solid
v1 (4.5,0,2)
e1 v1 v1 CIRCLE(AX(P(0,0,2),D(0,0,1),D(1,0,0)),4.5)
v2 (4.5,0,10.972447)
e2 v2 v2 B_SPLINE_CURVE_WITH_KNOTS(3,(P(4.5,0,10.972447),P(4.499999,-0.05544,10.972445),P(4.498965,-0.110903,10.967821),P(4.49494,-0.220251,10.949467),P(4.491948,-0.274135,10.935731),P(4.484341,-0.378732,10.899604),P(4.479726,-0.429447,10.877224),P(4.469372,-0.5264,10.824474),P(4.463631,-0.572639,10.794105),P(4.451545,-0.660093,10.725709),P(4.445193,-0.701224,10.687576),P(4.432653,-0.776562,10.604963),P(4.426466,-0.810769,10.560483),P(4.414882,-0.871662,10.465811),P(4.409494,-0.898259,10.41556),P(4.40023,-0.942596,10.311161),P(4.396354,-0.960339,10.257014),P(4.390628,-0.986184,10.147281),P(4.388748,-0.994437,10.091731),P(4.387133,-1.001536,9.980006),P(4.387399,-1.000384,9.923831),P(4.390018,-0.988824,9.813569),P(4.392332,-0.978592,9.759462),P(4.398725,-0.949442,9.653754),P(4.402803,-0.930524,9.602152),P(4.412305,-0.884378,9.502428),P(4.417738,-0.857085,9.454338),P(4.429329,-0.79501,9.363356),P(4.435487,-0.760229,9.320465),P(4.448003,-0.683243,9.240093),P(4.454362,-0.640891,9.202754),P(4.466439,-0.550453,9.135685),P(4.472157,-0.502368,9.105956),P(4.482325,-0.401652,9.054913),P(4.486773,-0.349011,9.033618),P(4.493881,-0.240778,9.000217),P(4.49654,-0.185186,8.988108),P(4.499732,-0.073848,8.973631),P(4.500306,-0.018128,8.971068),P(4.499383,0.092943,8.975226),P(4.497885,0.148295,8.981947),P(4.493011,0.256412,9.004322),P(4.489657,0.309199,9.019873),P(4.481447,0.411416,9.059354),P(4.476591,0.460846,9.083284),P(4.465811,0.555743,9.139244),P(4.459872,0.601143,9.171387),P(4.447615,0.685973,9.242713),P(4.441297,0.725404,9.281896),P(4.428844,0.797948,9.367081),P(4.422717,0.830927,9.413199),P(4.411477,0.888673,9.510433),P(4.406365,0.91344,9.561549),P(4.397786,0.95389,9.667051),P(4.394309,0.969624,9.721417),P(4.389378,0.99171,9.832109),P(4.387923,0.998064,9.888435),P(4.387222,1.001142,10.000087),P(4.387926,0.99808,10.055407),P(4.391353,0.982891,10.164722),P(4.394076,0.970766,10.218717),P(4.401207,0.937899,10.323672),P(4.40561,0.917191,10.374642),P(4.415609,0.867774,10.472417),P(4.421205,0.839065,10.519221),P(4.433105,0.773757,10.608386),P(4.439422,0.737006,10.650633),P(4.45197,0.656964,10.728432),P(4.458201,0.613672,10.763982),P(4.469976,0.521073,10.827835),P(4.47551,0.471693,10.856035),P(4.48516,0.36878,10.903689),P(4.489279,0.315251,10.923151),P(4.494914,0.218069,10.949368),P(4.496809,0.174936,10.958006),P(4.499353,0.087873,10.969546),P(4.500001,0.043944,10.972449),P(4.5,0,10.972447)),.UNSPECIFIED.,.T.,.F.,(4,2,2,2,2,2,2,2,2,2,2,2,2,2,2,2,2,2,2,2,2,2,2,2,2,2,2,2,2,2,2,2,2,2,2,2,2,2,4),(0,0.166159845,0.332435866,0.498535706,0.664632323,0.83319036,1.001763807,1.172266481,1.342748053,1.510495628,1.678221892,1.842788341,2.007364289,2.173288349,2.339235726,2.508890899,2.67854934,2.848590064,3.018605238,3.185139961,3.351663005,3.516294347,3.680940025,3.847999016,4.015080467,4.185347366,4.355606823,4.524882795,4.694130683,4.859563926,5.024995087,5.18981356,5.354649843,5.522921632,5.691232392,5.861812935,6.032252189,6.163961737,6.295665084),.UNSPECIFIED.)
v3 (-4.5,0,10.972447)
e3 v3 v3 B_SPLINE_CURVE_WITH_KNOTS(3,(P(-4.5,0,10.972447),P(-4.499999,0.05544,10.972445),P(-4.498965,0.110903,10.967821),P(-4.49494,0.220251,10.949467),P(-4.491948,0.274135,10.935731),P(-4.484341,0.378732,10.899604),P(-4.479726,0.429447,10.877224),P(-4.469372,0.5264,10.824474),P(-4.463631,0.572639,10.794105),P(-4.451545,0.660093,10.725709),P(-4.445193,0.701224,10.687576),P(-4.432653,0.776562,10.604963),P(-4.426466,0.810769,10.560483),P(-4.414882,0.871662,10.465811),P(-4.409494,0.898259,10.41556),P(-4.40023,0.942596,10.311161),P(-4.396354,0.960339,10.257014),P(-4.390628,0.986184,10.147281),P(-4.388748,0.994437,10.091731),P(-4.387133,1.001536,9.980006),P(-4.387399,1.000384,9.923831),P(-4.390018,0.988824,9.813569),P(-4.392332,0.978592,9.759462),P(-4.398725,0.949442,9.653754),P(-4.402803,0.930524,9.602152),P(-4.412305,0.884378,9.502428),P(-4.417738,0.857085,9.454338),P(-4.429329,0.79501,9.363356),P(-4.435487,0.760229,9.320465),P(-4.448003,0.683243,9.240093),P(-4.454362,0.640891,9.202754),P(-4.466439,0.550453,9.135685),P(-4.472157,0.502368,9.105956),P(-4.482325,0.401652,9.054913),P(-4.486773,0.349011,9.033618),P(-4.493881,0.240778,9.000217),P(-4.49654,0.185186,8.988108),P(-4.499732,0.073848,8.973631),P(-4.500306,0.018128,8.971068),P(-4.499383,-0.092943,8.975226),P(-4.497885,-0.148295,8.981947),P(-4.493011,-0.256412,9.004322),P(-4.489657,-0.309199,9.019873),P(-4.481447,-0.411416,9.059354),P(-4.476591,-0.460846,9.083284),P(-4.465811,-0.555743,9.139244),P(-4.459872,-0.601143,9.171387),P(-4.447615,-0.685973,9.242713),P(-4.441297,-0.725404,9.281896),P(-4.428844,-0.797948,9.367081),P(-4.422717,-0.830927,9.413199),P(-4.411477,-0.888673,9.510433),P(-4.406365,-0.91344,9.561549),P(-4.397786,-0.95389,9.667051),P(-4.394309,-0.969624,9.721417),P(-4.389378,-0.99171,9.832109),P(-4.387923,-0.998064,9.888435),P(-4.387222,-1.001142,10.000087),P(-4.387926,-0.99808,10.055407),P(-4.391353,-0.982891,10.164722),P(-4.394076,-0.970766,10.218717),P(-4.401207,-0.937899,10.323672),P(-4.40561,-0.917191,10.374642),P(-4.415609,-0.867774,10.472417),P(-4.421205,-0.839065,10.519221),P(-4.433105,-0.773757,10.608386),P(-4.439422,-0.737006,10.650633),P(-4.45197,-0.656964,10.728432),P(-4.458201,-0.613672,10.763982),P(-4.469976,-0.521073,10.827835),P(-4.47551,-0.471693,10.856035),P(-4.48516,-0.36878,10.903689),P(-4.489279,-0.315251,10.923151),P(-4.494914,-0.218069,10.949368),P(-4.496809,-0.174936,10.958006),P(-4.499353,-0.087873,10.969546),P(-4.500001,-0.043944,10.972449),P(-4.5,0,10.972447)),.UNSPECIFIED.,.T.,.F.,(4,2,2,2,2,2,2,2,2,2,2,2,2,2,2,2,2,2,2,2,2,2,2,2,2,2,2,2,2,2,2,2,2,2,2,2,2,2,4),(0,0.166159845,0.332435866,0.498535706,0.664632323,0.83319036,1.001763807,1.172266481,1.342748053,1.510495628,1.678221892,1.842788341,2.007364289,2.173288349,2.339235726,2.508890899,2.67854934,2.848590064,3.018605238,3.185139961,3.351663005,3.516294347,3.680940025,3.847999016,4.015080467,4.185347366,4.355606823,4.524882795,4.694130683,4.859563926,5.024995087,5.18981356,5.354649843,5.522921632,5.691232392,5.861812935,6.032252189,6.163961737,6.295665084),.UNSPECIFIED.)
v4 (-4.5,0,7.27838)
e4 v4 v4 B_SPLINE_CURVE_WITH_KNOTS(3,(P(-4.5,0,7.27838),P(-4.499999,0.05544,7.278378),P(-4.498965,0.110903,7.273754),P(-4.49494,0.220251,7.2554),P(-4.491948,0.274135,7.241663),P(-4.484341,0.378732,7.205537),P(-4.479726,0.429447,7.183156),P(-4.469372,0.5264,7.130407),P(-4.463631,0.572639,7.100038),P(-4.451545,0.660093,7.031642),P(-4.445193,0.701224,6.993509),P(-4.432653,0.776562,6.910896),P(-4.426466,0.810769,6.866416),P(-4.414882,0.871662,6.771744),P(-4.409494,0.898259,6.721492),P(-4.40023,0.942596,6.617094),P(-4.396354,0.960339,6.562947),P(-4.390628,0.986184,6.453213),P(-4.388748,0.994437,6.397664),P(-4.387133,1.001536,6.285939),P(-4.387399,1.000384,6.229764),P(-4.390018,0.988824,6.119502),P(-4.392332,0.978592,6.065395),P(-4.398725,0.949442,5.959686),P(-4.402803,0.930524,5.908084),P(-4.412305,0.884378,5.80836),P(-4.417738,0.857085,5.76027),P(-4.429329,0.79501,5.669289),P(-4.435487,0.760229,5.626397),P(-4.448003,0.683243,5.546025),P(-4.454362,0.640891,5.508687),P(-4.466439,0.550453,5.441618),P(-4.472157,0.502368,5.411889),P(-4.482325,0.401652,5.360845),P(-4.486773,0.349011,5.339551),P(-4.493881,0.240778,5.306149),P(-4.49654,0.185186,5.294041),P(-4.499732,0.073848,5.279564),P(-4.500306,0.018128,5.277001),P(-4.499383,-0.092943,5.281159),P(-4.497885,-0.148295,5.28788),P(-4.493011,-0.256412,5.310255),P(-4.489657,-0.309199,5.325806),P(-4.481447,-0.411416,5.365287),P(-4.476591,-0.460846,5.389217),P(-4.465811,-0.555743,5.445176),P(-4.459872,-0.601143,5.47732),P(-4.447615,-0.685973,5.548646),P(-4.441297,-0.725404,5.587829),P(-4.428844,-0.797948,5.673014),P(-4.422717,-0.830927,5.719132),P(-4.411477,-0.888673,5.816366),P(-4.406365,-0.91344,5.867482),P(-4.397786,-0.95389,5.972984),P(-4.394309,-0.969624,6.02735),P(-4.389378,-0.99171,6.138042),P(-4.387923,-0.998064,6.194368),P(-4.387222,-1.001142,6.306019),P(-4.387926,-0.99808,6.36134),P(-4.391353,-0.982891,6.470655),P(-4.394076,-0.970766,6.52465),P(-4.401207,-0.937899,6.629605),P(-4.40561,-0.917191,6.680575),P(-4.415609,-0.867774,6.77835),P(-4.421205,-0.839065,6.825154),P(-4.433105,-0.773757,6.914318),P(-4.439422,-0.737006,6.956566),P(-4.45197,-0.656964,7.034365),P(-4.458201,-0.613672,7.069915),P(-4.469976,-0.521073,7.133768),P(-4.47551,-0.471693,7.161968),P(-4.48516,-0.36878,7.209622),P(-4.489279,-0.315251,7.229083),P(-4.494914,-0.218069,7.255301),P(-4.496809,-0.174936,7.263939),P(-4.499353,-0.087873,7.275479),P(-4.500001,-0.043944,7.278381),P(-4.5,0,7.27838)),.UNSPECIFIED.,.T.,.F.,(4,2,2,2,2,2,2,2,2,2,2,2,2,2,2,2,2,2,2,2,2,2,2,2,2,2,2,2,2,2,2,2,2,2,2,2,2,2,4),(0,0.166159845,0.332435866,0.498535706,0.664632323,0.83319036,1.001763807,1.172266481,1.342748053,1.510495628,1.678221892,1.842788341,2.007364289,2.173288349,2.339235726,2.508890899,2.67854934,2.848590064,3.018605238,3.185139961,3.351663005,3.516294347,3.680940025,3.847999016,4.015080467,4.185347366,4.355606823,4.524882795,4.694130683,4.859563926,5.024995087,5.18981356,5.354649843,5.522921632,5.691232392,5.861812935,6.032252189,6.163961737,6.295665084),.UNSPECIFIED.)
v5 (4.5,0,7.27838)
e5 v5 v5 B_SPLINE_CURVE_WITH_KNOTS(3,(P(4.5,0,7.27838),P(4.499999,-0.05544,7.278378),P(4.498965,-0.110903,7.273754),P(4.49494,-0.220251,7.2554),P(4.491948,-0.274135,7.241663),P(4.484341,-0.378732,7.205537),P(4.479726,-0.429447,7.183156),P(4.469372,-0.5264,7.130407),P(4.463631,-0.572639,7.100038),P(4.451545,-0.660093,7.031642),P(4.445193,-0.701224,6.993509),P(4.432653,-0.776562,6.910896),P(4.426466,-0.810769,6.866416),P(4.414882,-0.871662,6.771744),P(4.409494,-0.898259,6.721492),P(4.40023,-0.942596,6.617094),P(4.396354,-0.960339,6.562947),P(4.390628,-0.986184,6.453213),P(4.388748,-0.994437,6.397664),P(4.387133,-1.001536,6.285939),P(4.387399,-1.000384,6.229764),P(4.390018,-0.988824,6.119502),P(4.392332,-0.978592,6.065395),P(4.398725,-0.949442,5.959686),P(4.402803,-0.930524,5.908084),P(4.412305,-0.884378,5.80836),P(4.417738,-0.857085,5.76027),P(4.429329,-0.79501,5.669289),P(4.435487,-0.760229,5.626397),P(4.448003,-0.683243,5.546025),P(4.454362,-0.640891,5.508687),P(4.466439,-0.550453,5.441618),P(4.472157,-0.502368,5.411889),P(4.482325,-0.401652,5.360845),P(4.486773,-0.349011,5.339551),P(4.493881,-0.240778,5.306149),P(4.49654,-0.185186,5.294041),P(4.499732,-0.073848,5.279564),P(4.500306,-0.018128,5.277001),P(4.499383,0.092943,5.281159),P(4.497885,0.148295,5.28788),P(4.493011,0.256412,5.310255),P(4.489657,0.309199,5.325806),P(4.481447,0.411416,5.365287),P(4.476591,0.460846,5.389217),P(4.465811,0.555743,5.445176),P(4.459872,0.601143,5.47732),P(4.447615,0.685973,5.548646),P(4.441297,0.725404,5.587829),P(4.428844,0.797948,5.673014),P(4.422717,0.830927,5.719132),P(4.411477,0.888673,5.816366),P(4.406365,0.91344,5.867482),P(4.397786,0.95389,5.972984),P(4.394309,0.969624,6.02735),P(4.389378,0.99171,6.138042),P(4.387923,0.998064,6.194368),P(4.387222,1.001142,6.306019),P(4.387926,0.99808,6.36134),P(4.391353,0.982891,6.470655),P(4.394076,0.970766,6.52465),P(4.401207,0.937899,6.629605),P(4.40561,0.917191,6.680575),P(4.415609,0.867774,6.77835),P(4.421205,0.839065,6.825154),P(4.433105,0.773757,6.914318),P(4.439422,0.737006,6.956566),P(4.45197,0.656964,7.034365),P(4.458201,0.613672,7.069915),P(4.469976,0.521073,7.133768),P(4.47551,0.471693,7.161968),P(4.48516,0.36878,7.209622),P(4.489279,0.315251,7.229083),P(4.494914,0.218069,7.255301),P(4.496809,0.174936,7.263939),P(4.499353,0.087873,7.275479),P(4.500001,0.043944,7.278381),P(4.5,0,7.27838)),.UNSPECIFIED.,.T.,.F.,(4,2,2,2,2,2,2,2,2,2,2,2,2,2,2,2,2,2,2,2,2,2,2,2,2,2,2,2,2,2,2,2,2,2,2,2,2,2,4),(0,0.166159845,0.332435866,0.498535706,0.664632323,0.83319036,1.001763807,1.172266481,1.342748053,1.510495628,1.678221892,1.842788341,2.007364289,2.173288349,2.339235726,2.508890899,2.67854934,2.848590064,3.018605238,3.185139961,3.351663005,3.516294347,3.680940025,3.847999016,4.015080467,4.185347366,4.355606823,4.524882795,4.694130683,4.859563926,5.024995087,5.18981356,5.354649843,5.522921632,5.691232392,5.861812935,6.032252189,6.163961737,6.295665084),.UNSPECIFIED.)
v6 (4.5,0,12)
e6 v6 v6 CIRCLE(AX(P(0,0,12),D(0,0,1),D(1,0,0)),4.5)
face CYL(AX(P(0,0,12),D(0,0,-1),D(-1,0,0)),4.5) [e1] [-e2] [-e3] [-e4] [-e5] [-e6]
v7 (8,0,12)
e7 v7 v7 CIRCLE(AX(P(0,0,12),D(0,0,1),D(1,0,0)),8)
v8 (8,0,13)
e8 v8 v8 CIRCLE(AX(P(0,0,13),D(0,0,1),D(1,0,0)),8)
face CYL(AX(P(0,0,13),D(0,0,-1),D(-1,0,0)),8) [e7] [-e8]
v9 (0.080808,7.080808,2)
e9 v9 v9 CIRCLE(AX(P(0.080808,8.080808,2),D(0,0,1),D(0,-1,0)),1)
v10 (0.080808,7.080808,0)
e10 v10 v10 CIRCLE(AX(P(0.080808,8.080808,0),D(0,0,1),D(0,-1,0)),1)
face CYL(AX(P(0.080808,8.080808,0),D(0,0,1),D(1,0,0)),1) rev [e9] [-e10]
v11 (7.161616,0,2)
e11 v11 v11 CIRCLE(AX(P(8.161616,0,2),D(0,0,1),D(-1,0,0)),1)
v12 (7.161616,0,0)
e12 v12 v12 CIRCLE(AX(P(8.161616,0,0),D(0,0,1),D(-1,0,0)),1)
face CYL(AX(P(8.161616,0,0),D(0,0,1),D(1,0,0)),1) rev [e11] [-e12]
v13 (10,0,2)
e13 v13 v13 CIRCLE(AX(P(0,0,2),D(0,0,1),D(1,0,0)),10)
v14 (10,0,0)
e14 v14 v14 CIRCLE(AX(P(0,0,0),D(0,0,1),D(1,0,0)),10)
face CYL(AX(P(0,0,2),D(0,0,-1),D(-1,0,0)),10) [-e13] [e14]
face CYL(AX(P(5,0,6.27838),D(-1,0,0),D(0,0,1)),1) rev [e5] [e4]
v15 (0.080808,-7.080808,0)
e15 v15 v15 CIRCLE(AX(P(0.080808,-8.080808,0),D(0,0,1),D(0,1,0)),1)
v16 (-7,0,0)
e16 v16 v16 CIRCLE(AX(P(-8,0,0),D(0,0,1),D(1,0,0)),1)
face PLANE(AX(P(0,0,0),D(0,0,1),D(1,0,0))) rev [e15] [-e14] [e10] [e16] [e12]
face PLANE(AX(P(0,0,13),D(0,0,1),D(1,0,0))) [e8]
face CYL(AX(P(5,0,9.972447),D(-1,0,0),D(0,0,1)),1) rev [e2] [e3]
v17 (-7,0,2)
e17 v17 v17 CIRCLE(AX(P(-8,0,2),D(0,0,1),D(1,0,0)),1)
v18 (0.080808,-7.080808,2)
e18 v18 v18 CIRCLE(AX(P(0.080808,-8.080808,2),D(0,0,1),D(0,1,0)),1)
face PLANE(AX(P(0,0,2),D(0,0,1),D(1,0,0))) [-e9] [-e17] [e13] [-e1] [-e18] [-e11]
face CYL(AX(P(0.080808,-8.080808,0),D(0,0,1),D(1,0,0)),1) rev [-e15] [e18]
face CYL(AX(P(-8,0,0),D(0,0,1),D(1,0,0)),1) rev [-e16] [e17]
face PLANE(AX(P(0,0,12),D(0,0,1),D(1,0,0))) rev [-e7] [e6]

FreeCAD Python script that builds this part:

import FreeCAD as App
import Part
import Sketcher
Q = App.Units.Quantity

doc = App.newDocument("Part")
body = doc.addObject("PartDesign::Body", "Body")

# Sketch on XY plane
sketch1 = doc.addObject("Sketcher::SketchObject", "Sketch")
body.addObject(sketch1)
sketch1.AttachmentSupport = (doc.XY_Plane, [""])
sketch1.MapMode = "FlatFace"
sketch1.addGeometry(Part.Circle(App.Vector(0, 0, 0), App.Vector(0, 0, 1), 10), False)
sketch1.addConstraint(Sketcher.Constraint("Coincident", 0, 3, -1, 1))
sketch1.addConstraint(Sketcher.Constraint("Diameter", 0, Q("20 mm")))
pad1 = doc.addObject("PartDesign::Pad", "Pad")
body.addObject(pad1)
pad1.Profile = sketch1
pad1.Length = 2

# Sketch on XY plane
sketch2 = doc.addObject("Sketcher::SketchObject", "Sketch001")
body.addObject(sketch2)
sketch2.AttachmentSupport = (doc.XY_Plane, [""])
sketch2.MapMode = "FlatFace"
sketch2.AttachmentOffset = App.Placement(App.Vector(0, 0, 2), App.Rotation())
sketch2.addGeometry(Part.Circle(App.Vector(-8, 0, 0), App.Vector(0, 0, 1), 1), False)
sketch2.addConstraint(Sketcher.Constraint("PointOnObject", 0, 3, -1))
sketch2.addConstraint(Sketcher.Constraint("Diameter", 0, Q("2 mm")))
sketch2.addConstraint(Sketcher.Constraint("DistanceX", 0, 3, -1, 1, Q("8 mm")))
pocket1 = doc.addObject("PartDesign::Pocket", "Pocket")
body.addObject(pocket1)
pocket1.Profile = sketch2
pocket1.Length = 2
doc.recompute()

datumline = doc.addObject("PartDesign::Line", "DatumLine")
body.addObject(datumline)
datumline.Placement = App.Placement(App.Vector(0.080808, 0, 0), App.Rotation(App.Vector(0, 0, 1), App.Vector(0, 0, 1)))
polarpattern = doc.addObject("PartDesign::PolarPattern", "PolarPattern")
body.addObject(polarpattern)
polarpattern.Originals = [pocket1]
polarpattern.Axis = (datumline, [""])
polarpattern.Angle = 360
polarpattern.Occurrences = 4
body.Tip = polarpattern

# Sketch on XY plane
sketch3 = doc.addObject("Sketcher::SketchObject", "Sketch002")
body.addObject(sketch3)
sketch3.AttachmentSupport = (doc.XY_Plane, [""])
sketch3.MapMode = "FlatFace"
sketch3.AttachmentOffset = App.Placement(App.Vector(0, 0, 2), App.Rotation())
sketch3.addGeometry(Part.Circle(App.Vector(0, 0, 0), App.Vector(0, 0, 1), 4.5), False)
sketch3.addConstraint(Sketcher.Constraint("Coincident", 0, 3, -1, 1))
sketch3.addConstraint(Sketcher.Constraint("Diameter", 0, Q("9 mm")))
pad2 = doc.addObject("PartDesign::Pad", "Pad001")
body.addObject(pad2)
pad2.Profile = sketch3
pad2.Length = 10

# Sketch on XY plane
sketch4 = doc.addObject("Sketcher::SketchObject", "Sketch003")
body.addObject(sketch4)
sketch4.AttachmentSupport = (doc.XY_Plane, [""])
sketch4.MapMode = "FlatFace"
sketch4.AttachmentOffset = App.Placement(App.Vector(0, 0, 12), App.Rotation())
sketch4.addGeometry(Part.Circle(App.Vector(0, 0, 0), App.Vector(0, 0, 1), 8), False)
sketch4.addConstraint(Sketcher.Constraint("Coincident", 0, 3, -1, 1))
sketch4.addConstraint(Sketcher.Constraint("Diameter", 0, Q("16 mm")))
pad3 = doc.addObject("PartDesign::Pad", "Pad002")
body.addObject(pad3)
pad3.Profile = sketch4
pad3.Length = 1

# Sketch on YZ plane
sketch5 = doc.addObject("Sketcher::SketchObject", "Sketch004")
body.addObject(sketch5)
sketch5.AttachmentSupport = (doc.YZ_Plane, [""])
sketch5.MapMode = "FlatFace"
sketch5.addGeometry(Part.Circle(App.Vector(0, 9.972447, 0), App.Vector(0, 0, 1), 1), False)
sketch5.addGeometry(Part.Circle(App.Vector(0, 6.27838, 0), App.Vector(0, 0, 1), 1), False)
sketch5.addConstraint(Sketcher.Constraint("Equal", 0, 1))
sketch5.addConstraint(Sketcher.Constraint("PointOnObject", 0, 3, -2))
sketch5.addConstraint(Sketcher.Constraint("PointOnObject", 1, 3, -2))
sketch5.addConstraint(Sketcher.Constraint("Diameter", 0, Q("2 mm")))
sketch5.addConstraint(Sketcher.Constraint("DistanceY", -1, 1, 1, 3, Q("6.27838 mm")))
sketch5.addConstraint(Sketcher.Constraint("DistanceY", -1, 1, 0, 3, Q("9.972447 mm")))
pocket2 = doc.addObject("PartDesign::Pocket", "Pocket001")
body.addObject(pocket2)
pocket2.Profile = sketch5
pocket2.Type = "ThroughAll"
pocket2.Midplane = True

doc.recompute()
